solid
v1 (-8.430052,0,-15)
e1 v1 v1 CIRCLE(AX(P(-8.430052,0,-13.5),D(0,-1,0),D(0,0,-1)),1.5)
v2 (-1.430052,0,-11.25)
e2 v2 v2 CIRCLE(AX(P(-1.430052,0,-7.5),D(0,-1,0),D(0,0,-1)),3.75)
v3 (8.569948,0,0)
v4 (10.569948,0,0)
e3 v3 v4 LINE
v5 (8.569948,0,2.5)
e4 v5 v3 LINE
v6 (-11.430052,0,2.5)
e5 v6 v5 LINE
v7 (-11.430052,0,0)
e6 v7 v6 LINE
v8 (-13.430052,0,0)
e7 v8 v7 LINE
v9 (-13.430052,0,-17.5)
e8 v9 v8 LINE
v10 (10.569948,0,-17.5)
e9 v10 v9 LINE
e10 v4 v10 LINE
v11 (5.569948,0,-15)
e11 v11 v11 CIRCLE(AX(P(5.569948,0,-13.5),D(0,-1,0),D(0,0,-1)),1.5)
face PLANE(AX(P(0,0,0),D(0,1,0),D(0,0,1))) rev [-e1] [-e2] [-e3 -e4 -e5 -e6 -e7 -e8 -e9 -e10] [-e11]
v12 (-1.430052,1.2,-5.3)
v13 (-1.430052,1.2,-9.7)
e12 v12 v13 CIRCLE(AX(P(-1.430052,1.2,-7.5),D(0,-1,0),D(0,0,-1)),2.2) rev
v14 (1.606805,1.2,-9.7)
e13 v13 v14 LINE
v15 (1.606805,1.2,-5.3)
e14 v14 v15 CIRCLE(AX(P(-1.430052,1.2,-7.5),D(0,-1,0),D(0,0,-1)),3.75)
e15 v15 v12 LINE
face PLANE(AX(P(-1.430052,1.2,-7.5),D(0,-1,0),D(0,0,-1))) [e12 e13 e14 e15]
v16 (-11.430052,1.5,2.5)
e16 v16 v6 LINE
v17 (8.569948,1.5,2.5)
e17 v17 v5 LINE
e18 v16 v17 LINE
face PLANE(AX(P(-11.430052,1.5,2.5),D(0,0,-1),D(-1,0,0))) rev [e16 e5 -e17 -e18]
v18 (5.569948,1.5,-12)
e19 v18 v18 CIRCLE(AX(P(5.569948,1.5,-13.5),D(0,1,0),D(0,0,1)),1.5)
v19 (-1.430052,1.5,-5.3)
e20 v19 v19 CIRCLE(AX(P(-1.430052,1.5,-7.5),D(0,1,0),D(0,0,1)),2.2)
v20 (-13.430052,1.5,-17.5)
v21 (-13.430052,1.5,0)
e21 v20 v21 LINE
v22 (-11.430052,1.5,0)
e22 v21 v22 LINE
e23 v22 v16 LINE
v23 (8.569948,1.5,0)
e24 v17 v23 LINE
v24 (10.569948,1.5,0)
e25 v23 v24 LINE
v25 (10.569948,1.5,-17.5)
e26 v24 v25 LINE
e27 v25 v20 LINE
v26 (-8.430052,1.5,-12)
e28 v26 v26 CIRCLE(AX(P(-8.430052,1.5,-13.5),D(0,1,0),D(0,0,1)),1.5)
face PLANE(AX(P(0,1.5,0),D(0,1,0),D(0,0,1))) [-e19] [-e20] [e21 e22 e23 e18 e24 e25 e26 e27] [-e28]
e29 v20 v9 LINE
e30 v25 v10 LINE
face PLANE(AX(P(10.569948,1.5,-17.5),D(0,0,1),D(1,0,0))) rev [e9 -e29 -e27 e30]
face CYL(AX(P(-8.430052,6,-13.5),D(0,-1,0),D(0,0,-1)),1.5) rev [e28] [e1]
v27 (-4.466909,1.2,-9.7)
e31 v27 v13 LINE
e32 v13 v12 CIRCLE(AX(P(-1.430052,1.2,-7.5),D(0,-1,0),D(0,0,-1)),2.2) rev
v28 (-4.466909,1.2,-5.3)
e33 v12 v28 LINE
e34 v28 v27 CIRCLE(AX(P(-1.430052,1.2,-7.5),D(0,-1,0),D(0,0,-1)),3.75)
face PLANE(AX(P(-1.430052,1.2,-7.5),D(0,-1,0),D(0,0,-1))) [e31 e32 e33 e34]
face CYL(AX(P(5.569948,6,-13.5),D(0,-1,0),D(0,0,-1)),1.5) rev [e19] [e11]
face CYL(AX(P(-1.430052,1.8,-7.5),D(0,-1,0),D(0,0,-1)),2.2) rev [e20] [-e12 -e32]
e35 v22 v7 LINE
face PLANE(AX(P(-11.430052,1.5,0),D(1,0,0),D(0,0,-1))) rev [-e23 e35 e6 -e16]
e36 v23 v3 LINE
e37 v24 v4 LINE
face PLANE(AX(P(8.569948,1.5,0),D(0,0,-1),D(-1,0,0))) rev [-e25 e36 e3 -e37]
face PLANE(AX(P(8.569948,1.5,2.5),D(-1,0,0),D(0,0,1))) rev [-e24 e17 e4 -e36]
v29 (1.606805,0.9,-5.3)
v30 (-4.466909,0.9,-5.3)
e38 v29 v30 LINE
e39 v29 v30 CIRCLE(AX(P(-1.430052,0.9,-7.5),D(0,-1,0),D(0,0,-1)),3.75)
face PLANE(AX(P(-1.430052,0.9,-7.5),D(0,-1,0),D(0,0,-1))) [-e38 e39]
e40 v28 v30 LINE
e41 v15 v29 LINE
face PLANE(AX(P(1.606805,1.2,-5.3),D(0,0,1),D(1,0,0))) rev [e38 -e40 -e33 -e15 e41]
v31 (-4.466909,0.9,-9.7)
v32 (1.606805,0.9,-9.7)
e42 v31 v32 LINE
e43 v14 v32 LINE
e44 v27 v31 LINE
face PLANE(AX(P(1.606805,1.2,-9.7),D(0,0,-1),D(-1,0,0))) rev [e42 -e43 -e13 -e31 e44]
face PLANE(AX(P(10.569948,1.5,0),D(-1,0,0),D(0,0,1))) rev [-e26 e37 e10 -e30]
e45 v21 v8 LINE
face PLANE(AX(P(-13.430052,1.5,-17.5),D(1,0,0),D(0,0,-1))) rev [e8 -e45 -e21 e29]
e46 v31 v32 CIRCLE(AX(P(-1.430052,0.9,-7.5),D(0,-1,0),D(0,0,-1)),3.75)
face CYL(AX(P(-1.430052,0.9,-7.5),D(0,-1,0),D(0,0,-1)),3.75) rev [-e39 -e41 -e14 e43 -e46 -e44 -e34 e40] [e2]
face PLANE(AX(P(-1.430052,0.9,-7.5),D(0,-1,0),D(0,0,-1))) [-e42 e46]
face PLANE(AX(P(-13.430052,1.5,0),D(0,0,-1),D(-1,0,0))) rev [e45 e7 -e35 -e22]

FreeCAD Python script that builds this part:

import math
import FreeCAD as App
import Part
import Sketcher

doc = App.newDocument("Part")
params = doc.addObject("Spreadsheet::Sheet", "Params")
for row, (alias, value) in enumerate([
    ("sketch1_width", "2 mm"),
    ("sketch1_width2", "20 mm"),
    ("sketch1_height", "17.5 mm"),
    ("sketch1_height2", "2.5 mm"),
    ("pad1_length", "1.5 mm"),
    ("sketch2_diameter", "7.5 mm"),
    ("pocket1_length", "0.9 mm"),
    ("sketch3_diameter", "4.4 mm"),
    ("pocket2_length", "0.9 mm"),
    ("sketch4_diameter", "3 mm"),
    ("pocket3_length", "6 mm"),
    ("sketch5_radius", "3.75 mm"),
    ("pocket4_length", "0.3 mm"),
], start=1):
    params.set(f"A{row}", alias)
    params.set(f"B{row}", "=" + value)
    params.setAlias(f"B{row}", alias)

body = doc.addObject("PartDesign::Body", "Body")

sketch1 = doc.addObject("Sketcher::SketchObject", "Sketch")
body.addObject(sketch1)
sketch1.AttachmentSupport = (doc.XZ_Plane, [""])
sketch1.MapMode = "FlatFace"
sketch1.addGeometry([
    Part.LineSegment(App.Vector(-13.4, -17.5, 0), App.Vector(-13.4, 0, 0)),
    Part.LineSegment(App.Vector(-13.4, 0, 0), App.Vector(-11.4, 0, 0)),
    Part.LineSegment(App.Vector(-11.4, 0, 0), App.Vector(-11.4, 2.5, 0)),
    Part.LineSegment(App.Vector(-11.4, 2.5, 0), App.Vector(8.6, 2.5, 0)),
    Part.LineSegment(App.Vector(8.6, 2.5, 0), App.Vector(8.6, 0, 0)),
    Part.LineSegment(App.Vector(8.6, 0, 0), App.Vector(10.6, 0, 0)),
    Part.LineSegment(App.Vector(10.6, 0, 0), App.Vector(10.6, -17.5, 0)),
    Part.LineSegment(App.Vector(10.6, -17.5, 0), App.Vector(-13.4, -17.5, 0)),
], False)
sketch1.addConstraint([
    Sketcher.Constraint("Coincident", 0, 2, 1, 1),
    Sketcher.Constraint("Coincident", 1, 2, 2, 1),
    Sketcher.Constraint("Coincident", 2, 2, 3, 1),
    Sketcher.Constraint("Coincident", 3, 2, 4, 1),
    Sketcher.Constraint("Coincident", 4, 2, 5, 1),
    Sketcher.Constraint("Coincident", 5, 2, 6, 1),
    Sketcher.Constraint("Coincident", 6, 2, 7, 1),
    Sketcher.Constraint("Coincident", 7, 2, 0, 1),
    Sketcher.Constraint("Vertical", 0),
    Sketcher.Constraint("Horizontal", 1),
    Sketcher.Constraint("Vertical", 2),
    Sketcher.Constraint("Horizontal", 3),
    Sketcher.Constraint("Vertical", 4),
    Sketcher.Constraint("Horizontal", 5),
    Sketcher.Constraint("Vertical", 6),
    Sketcher.Constraint("Horizontal", 7),
    Sketcher.Constraint("PointOnObject", 0, 2, -1),
    Sketcher.Constraint("PointOnObject", 4, 2, -1),
    Sketcher.Constraint("Equal", 1, 5),
    Sketcher.Constraint("DistanceX", 1, 1, 1, 2, 2.0),
    Sketcher.Constraint("DistanceX", 3, 1, 3, 2, 20.0),
    Sketcher.Constraint("DistanceY", 0, 1, 0, 2, 17.5),
    Sketcher.Constraint("DistanceY", 2, 1, 2, 2, 2.5),
    Sketcher.Constraint("DistanceX", 0, 2, -1, 1, 13.430052),
])
sketch1.setExpression("Constraints[19]", "Params.sketch1_width")
sketch1.setExpression("Constraints[20]", "Params.sketch1_width2")
sketch1.setExpression("Constraints[21]", "Params.sketch1_height")
sketch1.setExpression("Constraints[22]", "Params.sketch1_height2")
pad1 = doc.addObject("PartDesign::Pad", "Pad")
body.addObject(pad1)
pad1.Profile = sketch1
pad1.setExpression("Length", "Params.pad1_length")
pad1.Reversed = True

sketch2 = doc.addObject("Sketcher::SketchObject", "Sketch001")
body.addObject(sketch2)
sketch2.AttachmentSupport = (doc.XZ_Plane, [""])
sketch2.MapMode = "FlatFace"
sketch2.addGeometry(Part.Circle(App.Vector(-1.4, -7.5, 0), App.Vector(0, 0, 1), 3.8), False)
sketch2.addConstraint([
    Sketcher.Constraint("Diameter", 0, 7.5),
    Sketcher.Constraint("DistanceY", 0, 3, -1, 1, 7.5),
    Sketcher.Constraint("DistanceX", 0, 3, -1, 1, 1.430052),
])
sketch2.setExpression("Constraints[0]", "Params.sketch2_diameter")
pocket1 = doc.addObject("PartDesign::Pocket", "Pocket")
body.addObject(pocket1)
pocket1.Profile = sketch2
pocket1.setExpression("Length", "Params.pocket1_length")

sketch3 = doc.addObject("Sketcher::SketchObject", "Sketch002")
body.addObject(sketch3)
sketch3.AttachmentSupport = (doc.XZ_Plane, [""])
sketch3.MapMode = "FlatFace"
sketch3.AttachmentOffset = App.Placement(App.Vector(0, 0, -0.9), App.Rotation())
sketch3.addGeometry(Part.Circle(App.Vector(-1.4, -7.5, 0), App.Vector(0, 0, 1), 2.2), False)
sketch3.addConstraint([
    Sketcher.Constraint("Diameter", 0, 4.4),
    Sketcher.Constraint("DistanceY", 0, 3, -1, 1, 7.5),
    Sketcher.Constraint("DistanceX", 0, 3, -1, 1, 1.430052),
])
sketch3.setExpression("Constraints[0]", "Params.sketch3_diameter")
pocket2 = doc.addObject("PartDesign::Pocket", "Pocket001")
body.addObject(pocket2)
pocket2.Profile = sketch3
pocket2.setExpression("Length", "Params.pocket2_length")

sketch4 = doc.addObject("Sketcher::SketchObject", "Sketch003")
body.addObject(sketch4)
sketch4.AttachmentSupport = (doc.XZ_Plane, [""])
sketch4.MapMode = "FlatFace"
sketch4.addGeometry([
    Part.Circle(App.Vector(-8.4, -13.5, 0), App.Vector(0, 0, 1), 1.5),
    Part.Circle(App.Vector(5.6, -13.5, 0), App.Vector(0, 0, 1), 1.5),
], False)
sketch4.addConstraint([
    Sketcher.Constraint("Equal", 0, 1),
    Sketcher.Constraint("Horizontal", 0, 3, 1, 3),
    Sketcher.Constraint("Diameter", 0, 3.0),
    Sketcher.Constraint("DistanceX", 0, 3, 1, 3, 14.0),
    Sketcher.Constraint("DistanceY", 0, 3, -1, 1, 13.5),
    Sketcher.Constraint("DistanceX", 0, 3, -1, 1, 8.430052),
])
sketch4.setExpression("Constraints[2]", "Params.sketch4_diameter")
pocket3 = doc.addObject("PartDesign::Pocket", "Pocket002")
body.addObject(pocket3)
pocket3.Profile = sketch4
pocket3.setExpression("Length", "Params.pocket3_length")

sketch5 = doc.addObject("Sketcher::SketchObject", "Sketch004")
body.addObject(sketch5)
sketch5.AttachmentSupport = (doc.XZ_Plane, [""])
sketch5.MapMode = "FlatFace"
sketch5.AttachmentOffset = App.Placement(App.Vector(0, 0, -0.9), App.Rotation())
sketch5.addGeometry([
    Part.LineSegment(App.Vector(-4.5, -9.7, 0), App.Vector(1.6, -9.7, 0)),
    Part.ArcOfCircle(Part.Circle(App.Vector(-1.4, -7.5, 0), App.Vector(0, 0, 1), 3.7), math.radians(-36), math.radians(36)),
    Part.LineSegment(App.Vector(1.6, -5.3, 0), App.Vector(-4.5, -5.3, 0)),
    Part.ArcOfCircle(Part.Circle(App.Vector(-1.4, -7.5, 0), App.Vector(0, 0, 1), 3.8), math.radians(144), math.radians(216)),
], False)
sketch5.addConstraint([
    Sketcher.Constraint("Coincident", 0, 2, 1, 1),
    Sketcher.Constraint("Coincident", 1, 2, 2, 1),
    Sketcher.Constraint("Coincident", 2, 2, 3, 1),
    Sketcher.Constraint("Coincident", 3, 2, 0, 1),
    Sketcher.Constraint("Horizontal", 0),
    Sketcher.Constraint("Horizontal", 2),
    Sketcher.Constraint("Coincident", 3, 3, 1, 3),
    Sketcher.Constraint("Equal", 1, 3),
    Sketcher.Constraint("Vertical", 0, 2, 1, 2),
    Sketcher.Constraint("Radius", 1, 3.75),
    Sketcher.Constraint("DistanceY", 1, 3, -1, 1, 7.5),
    Sketcher.Constraint("DistanceY", 0, 2, -1, 1, 9.7),
    Sketcher.Constraint("DistanceX", 1, 3, -1, 1, 1.430052),
])
sketch5.setExpression("Constraints[9]", "Params.sketch5_radius")
pocket4 = doc.addObject("PartDesign::Pocket", "Pocket003")
body.addObject(pocket4)
pocket4.Profile = sketch5
pocket4.setExpression("Length", "Params.pocket4_length")

doc.recompute()
